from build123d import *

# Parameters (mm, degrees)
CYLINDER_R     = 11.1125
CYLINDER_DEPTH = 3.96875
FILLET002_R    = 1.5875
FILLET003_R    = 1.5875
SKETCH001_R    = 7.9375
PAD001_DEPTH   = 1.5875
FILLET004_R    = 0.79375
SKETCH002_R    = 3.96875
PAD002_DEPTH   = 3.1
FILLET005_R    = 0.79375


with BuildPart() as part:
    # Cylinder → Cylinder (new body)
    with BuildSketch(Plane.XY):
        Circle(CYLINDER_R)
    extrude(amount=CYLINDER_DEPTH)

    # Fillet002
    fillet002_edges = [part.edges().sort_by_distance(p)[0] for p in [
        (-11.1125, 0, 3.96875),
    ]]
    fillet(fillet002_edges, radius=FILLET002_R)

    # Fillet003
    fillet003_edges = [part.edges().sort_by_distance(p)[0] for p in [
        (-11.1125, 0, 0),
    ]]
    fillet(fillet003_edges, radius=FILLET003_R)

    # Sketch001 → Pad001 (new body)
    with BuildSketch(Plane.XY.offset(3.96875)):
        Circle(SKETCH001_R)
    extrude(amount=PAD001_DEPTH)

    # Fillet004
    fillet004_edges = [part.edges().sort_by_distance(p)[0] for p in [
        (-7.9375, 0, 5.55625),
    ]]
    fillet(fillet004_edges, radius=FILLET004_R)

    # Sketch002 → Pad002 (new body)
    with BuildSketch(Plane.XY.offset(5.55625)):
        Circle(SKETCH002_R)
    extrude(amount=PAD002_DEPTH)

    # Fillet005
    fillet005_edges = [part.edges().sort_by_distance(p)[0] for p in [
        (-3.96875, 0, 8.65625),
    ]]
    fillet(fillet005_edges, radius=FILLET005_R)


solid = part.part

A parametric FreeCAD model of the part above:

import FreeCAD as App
import Part
import Sketcher

V = App.Vector
Q = App.Units.Quantity


def edges_at(feature, points):
    """Names of the edges that pass closest to the given points."""
    edges = feature.Shape.Edges
    near = lambda p: min(range(len(edges)), key=lambda i: edges[i].distToShape(Part.Vertex(*p))[0])
    return sorted({f"Edge{near(p) + 1}" for p in points})

doc = App.newDocument("Part")
params = doc.addObject("Spreadsheet::Sheet", "Params")
for row, (alias, value) in enumerate([
    ("sketch1_diameter", "0.875 in"),
    ("pad1_length", "0.15625 in"),
    ("fillet_radius", "0.0625 in"),
    ("fillet2_radius", "0.0625 in"),
    ("sketch2_diameter", "0.625 in"),
    ("pad2_length", "0.0625 in"),
    ("fillet3_radius", "0.03125 in"),
    ("sketch3_diameter", "0.3125 in"),
    ("pad3_length", "3.1 mm"),
    ("fillet4_radius", "0.03125 in"),
], start=1):
    params.set(f"A{row}", alias)
    params.set(f"B{row}", "=" + value)
    params.setAlias(f"B{row}", alias)

body = doc.addObject("PartDesign::Body", "Body")

# Sketch on XY plane
sketch1 = doc.addObject("Sketcher::SketchObject", "Sketch")
body.addObject(sketch1)
sketch1.AttachmentSupport = (doc.XY_Plane, [""])
sketch1.MapMode = "FlatFace"
sketch1.addGeometry(Part.Circle(V(0, 0, 0), V(0, 0, 1), 11), False)
sketch1.addConstraint(Sketcher.Constraint("Coincident", 0, 3, -1, 1))
sketch1.addConstraint(Sketcher.Constraint("Diameter", 0, Q("0.875 in")))
sketch1.setExpression("Constraints[1]", "Params.sketch1_diameter")
pad1 = doc.addObject("PartDesign::Pad", "Pad")
body.addObject(pad1)
pad1.Profile = sketch1
pad1.setExpression("Length", "Params.pad1_length")
doc.recompute()

fillet = doc.addObject("PartDesign::Fillet", "Fillet")
body.addObject(fillet)
fillet.Base = (pad1, edges_at(pad1, [(-11.113, 0, 3.969)]))
fillet.setExpression("Radius", "Params.fillet_radius")
doc.recompute()

fillet2 = doc.addObject("PartDesign::Fillet", "Fillet001")
body.addObject(fillet2)
fillet2.Base = (fillet, edges_at(fillet, [(-11.113, 0, 0)]))
fillet2.setExpression("Radius", "Params.fillet2_radius")

# Sketch on XY plane
sketch2 = doc.addObject("Sketcher::SketchObject", "Sketch001")
body.addObject(sketch2)
sketch2.AttachmentSupport = (doc.XY_Plane, [""])
sketch2.MapMode = "FlatFace"
sketch2.AttachmentOffset = App.Placement(V(0, 0, 0.15625 * 25.4), App.Rotation())
sketch2.addGeometry(Part.Circle(V(0, 0, 0), V(0, 0, 1), 8), False)
sketch2.addConstraint(Sketcher.Constraint("Coincident", 0, 3, -1, 1))
sketch2.addConstraint(Sketcher.Constraint("Diameter", 0, Q("0.625 in")))
sketch2.setExpression("Constraints[1]", "Params.sketch2_diameter")
pad2 = doc.addObject("PartDesign::Pad", "Pad001")
body.addObject(pad2)
pad2.Profile = sketch2
pad2.setExpression("Length", "Params.pad2_length")
doc.recompute()

fillet3 = doc.addObject("PartDesign::Fillet", "Fillet002")
body.addObject(fillet3)
fillet3.Base = (pad2, edges_at(pad2, [(-7.938, 0, 5.556)]))
fillet3.setExpression("Radius", "Params.fillet3_radius")

# Sketch on XY plane
sketch3 = doc.addObject("Sketcher::SketchObject", "Sketch002")
body.addObject(sketch3)
sketch3.AttachmentSupport = (doc.XY_Plane, [""])
sketch3.MapMode = "FlatFace"
sketch3.AttachmentOffset = App.Placement(V(0, 0, 0.21875 * 25.4), App.Rotation())
sketch3.addGeometry(Part.Circle(V(0, 0, 0), V(0, 0, 1), 4), False)
sketch3.addConstraint(Sketcher.Constraint("Coincident", 0, 3, -1, 1))
sketch3.addConstraint(Sketcher.Constraint("Diameter", 0, Q("0.3125 in")))
sketch3.setExpression("Constraints[1]", "Params.sketch3_diameter")
pad3 = doc.addObject("PartDesign::Pad", "Pad002")
body.addObject(pad3)
pad3.Profile = sketch3
pad3.setExpression("Length", "Params.pad3_length")
doc.recompute()

fillet4 = doc.addObject("PartDesign::Fillet", "Fillet003")
body.addObject(fillet4)
fillet4.Base = (pad3, edges_at(pad3, [(-3.969, 0, 8.656)]))
fillet4.setExpression("Radius", "Params.fillet4_radius")

doc.recompute()
